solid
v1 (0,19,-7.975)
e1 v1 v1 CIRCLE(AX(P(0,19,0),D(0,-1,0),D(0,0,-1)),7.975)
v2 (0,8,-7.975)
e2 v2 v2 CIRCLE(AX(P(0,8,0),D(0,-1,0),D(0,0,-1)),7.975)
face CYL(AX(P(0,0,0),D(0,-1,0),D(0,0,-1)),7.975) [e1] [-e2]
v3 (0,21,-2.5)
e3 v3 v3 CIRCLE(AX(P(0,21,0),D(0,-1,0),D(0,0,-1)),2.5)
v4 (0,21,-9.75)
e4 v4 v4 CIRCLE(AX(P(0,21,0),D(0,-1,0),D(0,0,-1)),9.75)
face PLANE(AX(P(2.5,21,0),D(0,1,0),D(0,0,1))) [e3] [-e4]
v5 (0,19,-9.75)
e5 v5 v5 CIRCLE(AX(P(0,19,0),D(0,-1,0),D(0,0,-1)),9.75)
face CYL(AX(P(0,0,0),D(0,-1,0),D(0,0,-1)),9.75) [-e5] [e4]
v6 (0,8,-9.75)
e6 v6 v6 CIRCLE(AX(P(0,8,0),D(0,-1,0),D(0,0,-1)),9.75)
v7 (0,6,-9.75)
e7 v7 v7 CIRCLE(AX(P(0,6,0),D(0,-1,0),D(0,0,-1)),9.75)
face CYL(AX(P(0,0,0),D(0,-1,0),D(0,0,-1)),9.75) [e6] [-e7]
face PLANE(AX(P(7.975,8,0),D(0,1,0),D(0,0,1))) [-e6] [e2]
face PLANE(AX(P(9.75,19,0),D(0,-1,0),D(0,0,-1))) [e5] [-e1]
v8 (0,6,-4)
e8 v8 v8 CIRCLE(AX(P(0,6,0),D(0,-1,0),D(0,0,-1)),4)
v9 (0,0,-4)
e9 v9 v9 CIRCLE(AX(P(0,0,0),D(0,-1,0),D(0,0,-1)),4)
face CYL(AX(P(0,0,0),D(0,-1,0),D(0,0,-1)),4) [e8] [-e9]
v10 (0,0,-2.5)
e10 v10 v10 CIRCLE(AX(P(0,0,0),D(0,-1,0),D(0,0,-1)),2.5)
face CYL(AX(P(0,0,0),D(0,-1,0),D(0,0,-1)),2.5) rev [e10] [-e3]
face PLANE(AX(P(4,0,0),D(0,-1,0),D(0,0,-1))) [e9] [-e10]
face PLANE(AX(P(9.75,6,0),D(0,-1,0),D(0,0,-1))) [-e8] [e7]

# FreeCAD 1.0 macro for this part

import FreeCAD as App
import Part
import Sketcher

V = App.Vector


def add_polygon(sketch, points):
    """Adds a closed chain of lines whose ends are joined by coincident constraints."""
    first, n = sketch.GeometryCount, len(points)
    for a, b in zip(points, points[1:] + points[:1]):
        sketch.addGeometry(Part.LineSegment(App.Vector(*a, 0), App.Vector(*b, 0)), False)
    for i in range(n):
        sketch.addConstraint(Sketcher.Constraint("Coincident", first + i, 2, first + (i + 1) % n, 1))

doc = App.newDocument("Part")
body = doc.addObject("PartDesign::Body", "Body")

sketch1 = doc.addObject("Sketcher::SketchObject", "Sketch")
body.addObject(sketch1)
sketch1.AttachmentSupport = (doc.XY_Plane, [""])
sketch1.MapMode = "FlatFace"
add_polygon(sketch1, [(2.5, 21), (2.5, 0), (4, 0), (4, 6), (9.8, 6), (9.8, 8), (8, 8), (8, 19), (9.8, 19), (9.8, 21)])
sketch1.addConstraint(Sketcher.Constraint("Vertical", 0))
sketch1.addConstraint(Sketcher.Constraint("Horizontal", 1))
sketch1.addConstraint(Sketcher.Constraint("Vertical", 2))
sketch1.addConstraint(Sketcher.Constraint("Horizontal", 3))
sketch1.addConstraint(Sketcher.Constraint("Vertical", 4))
sketch1.addConstraint(Sketcher.Constraint("Horizontal", 5))
sketch1.addConstraint(Sketcher.Constraint("Vertical", 6))
sketch1.addConstraint(Sketcher.Constraint("Horizontal", 7))
sketch1.addConstraint(Sketcher.Constraint("Vertical", 8))
sketch1.addConstraint(Sketcher.Constraint("Horizontal", 9))
sketch1.addConstraint(Sketcher.Constraint("PointOnObject", 0, 2, -1))
sketch1.addConstraint(Sketcher.Constraint("Vertical", 4, 2, 7, 2))
sketch1.addConstraint(Sketcher.Constraint("Equal", 4, 8))
sketch1.addConstraint(Sketcher.Constraint("DistanceY", 0, 2, 0, 1, 21.0))
sketch1.addConstraint(Sketcher.Constraint("DistanceY", 2, 1, 2, 2, 6.0))
sketch1.addConstraint(Sketcher.Constraint("DistanceY", 4, 1, 4, 2, 2.0))
sketch1.addConstraint(Sketcher.Constraint("DistanceX", 1, 1, 1, 2, 1.5))
sketch1.addConstraint(Sketcher.Constraint("DistanceX", -1, 1, 1, 2, 4.0))
sketch1.addConstraint(Sketcher.Constraint("DistanceX", 3, 1, 3, 2, 5.75))
sketch1.addConstraint(Sketcher.Constraint("DistanceX", 5, 2, 5, 1, 1.775))
revolution = doc.addObject("PartDesign::Revolution", "Revolution")
body.addObject(revolution)
revolution.Profile = sketch1
revolution.ReferenceAxis = (sketch1, ["V_Axis"])
revolution.Angle = 360

doc.recompute()
